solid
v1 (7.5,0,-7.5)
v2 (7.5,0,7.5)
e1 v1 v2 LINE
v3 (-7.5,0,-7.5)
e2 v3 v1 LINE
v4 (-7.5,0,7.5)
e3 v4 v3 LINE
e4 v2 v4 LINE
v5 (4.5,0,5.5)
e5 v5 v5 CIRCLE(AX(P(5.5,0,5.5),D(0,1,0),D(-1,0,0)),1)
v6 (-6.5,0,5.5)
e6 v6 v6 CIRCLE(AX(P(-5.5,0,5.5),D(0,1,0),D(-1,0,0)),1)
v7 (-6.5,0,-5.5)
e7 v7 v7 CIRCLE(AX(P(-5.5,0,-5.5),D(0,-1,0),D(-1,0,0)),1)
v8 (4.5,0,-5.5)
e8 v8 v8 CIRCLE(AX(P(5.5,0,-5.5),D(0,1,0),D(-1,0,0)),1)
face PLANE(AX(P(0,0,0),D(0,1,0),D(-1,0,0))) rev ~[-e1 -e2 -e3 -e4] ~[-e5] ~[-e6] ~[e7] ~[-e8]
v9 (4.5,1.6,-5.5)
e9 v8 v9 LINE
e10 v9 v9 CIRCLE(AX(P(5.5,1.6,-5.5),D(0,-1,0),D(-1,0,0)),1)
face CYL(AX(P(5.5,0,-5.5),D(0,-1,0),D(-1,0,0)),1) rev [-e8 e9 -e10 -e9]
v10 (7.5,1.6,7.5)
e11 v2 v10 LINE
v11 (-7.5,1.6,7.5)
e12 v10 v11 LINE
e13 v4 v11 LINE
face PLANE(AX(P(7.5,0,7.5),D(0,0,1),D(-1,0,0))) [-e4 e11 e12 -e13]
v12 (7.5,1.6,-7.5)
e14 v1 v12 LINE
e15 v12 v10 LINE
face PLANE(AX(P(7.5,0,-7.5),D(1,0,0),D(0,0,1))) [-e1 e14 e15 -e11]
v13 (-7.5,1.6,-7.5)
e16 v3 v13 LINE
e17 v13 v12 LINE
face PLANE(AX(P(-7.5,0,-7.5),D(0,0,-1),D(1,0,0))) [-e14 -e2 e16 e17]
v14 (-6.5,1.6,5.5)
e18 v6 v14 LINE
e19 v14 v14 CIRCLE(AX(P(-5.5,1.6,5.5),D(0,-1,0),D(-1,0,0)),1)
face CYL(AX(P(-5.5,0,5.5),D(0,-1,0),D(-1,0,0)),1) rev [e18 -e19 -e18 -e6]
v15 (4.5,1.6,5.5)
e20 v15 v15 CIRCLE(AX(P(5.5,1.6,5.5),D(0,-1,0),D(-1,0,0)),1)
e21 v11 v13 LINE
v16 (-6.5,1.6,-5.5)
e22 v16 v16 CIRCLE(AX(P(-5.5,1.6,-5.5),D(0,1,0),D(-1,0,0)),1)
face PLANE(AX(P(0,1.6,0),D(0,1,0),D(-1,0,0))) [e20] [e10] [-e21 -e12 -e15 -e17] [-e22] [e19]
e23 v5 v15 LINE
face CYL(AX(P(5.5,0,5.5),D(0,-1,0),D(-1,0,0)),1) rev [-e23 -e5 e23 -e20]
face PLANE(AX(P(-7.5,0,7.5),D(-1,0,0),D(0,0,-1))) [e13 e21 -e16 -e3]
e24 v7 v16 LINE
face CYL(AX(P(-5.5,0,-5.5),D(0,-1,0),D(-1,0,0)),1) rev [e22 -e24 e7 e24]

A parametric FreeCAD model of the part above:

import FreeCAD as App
import Part
import Sketcher
from FreeCAD import Vector


def add_polygon(sketch, points):
    """Adds a closed chain of lines whose ends are joined by coincident constraints."""
    first, n = sketch.GeometryCount, len(points)
    for a, b in zip(points, points[1:] + points[:1]):
        sketch.addGeometry(Part.LineSegment(App.Vector(*a, 0), App.Vector(*b, 0)), False)
    for i in range(n):
        sketch.addConstraint(Sketcher.Constraint("Coincident", first + i, 2, first + (i + 1) % n, 1))

doc = App.newDocument("Part")
body = doc.addObject("PartDesign::Body", "Body")

sketch1 = doc.addObject("Sketcher::SketchObject", "Sketch")
body.addObject(sketch1)
sketch1.AttachmentSupport = (doc.XZ_Plane, [""])
sketch1.MapMode = "FlatFace"
add_polygon(sketch1, [(-7.5, -7.5), (-7.5, 7.5), (7.5, 7.5), (7.5, -7.5)])
sketch1.addGeometry(Part.Circle(Vector(-5.5, -5.5, 0), Vector(0, 0, 1), 1), False)
sketch1.addGeometry(Part.Circle(Vector(5.5, -5.5, 0), Vector(0, 0, 1), 1), False)
sketch1.addGeometry(Part.Circle(Vector(5.5, 5.5, 0), Vector(0, 0, 1), 1), False)
sketch1.addGeometry(Part.Circle(Vector(-5.5, 5.5, 0), Vector(0, 0, 1), 1), False)
sketch1.addConstraint(Sketcher.Constraint("Vertical", 0))
sketch1.addConstraint(Sketcher.Constraint("Horizontal", 1))
sketch1.addConstraint(Sketcher.Constraint("Vertical", 2))
sketch1.addConstraint(Sketcher.Constraint("Horizontal", 3))
sketch1.addConstraint(Sketcher.Constraint("Equal", 4, 5))
sketch1.addConstraint(Sketcher.Constraint("Equal", 5, 6))
sketch1.addConstraint(Sketcher.Constraint("Equal", 6, 7))
sketch1.addConstraint(Sketcher.Constraint("Symmetric", 4, 3, 6, 3, -1, 1))
sketch1.addConstraint(Sketcher.Constraint("Symmetric", 5, 3, 7, 3, -1, 1))
sketch1.addConstraint(Sketcher.Constraint("Symmetric", 0, 2, 2, 2, -1, 1))
sketch1.addConstraint(Sketcher.Constraint("Symmetric", 4, 3, 5, 3, -2))
sketch1.addConstraint(Sketcher.Constraint("Equal", 3, 0))
sketch1.addConstraint(Sketcher.Constraint("Diameter", 4, 2.0))
sketch1.addConstraint(Sketcher.Constraint("DistanceX", 1, 1, 1, 2, 15.0))
sketch1.addConstraint(Sketcher.Constraint("DistanceX", 4, 3, 5, 3, 11.0))
sketch1.addConstraint(Sketcher.Constraint("DistanceY", 5, 3, 6, 3, 11.0))
pad1 = doc.addObject("PartDesign::Pad", "Pad")
body.addObject(pad1)
pad1.Profile = sketch1
pad1.Length = 1.6
pad1.Reversed = True

doc.recompute()
